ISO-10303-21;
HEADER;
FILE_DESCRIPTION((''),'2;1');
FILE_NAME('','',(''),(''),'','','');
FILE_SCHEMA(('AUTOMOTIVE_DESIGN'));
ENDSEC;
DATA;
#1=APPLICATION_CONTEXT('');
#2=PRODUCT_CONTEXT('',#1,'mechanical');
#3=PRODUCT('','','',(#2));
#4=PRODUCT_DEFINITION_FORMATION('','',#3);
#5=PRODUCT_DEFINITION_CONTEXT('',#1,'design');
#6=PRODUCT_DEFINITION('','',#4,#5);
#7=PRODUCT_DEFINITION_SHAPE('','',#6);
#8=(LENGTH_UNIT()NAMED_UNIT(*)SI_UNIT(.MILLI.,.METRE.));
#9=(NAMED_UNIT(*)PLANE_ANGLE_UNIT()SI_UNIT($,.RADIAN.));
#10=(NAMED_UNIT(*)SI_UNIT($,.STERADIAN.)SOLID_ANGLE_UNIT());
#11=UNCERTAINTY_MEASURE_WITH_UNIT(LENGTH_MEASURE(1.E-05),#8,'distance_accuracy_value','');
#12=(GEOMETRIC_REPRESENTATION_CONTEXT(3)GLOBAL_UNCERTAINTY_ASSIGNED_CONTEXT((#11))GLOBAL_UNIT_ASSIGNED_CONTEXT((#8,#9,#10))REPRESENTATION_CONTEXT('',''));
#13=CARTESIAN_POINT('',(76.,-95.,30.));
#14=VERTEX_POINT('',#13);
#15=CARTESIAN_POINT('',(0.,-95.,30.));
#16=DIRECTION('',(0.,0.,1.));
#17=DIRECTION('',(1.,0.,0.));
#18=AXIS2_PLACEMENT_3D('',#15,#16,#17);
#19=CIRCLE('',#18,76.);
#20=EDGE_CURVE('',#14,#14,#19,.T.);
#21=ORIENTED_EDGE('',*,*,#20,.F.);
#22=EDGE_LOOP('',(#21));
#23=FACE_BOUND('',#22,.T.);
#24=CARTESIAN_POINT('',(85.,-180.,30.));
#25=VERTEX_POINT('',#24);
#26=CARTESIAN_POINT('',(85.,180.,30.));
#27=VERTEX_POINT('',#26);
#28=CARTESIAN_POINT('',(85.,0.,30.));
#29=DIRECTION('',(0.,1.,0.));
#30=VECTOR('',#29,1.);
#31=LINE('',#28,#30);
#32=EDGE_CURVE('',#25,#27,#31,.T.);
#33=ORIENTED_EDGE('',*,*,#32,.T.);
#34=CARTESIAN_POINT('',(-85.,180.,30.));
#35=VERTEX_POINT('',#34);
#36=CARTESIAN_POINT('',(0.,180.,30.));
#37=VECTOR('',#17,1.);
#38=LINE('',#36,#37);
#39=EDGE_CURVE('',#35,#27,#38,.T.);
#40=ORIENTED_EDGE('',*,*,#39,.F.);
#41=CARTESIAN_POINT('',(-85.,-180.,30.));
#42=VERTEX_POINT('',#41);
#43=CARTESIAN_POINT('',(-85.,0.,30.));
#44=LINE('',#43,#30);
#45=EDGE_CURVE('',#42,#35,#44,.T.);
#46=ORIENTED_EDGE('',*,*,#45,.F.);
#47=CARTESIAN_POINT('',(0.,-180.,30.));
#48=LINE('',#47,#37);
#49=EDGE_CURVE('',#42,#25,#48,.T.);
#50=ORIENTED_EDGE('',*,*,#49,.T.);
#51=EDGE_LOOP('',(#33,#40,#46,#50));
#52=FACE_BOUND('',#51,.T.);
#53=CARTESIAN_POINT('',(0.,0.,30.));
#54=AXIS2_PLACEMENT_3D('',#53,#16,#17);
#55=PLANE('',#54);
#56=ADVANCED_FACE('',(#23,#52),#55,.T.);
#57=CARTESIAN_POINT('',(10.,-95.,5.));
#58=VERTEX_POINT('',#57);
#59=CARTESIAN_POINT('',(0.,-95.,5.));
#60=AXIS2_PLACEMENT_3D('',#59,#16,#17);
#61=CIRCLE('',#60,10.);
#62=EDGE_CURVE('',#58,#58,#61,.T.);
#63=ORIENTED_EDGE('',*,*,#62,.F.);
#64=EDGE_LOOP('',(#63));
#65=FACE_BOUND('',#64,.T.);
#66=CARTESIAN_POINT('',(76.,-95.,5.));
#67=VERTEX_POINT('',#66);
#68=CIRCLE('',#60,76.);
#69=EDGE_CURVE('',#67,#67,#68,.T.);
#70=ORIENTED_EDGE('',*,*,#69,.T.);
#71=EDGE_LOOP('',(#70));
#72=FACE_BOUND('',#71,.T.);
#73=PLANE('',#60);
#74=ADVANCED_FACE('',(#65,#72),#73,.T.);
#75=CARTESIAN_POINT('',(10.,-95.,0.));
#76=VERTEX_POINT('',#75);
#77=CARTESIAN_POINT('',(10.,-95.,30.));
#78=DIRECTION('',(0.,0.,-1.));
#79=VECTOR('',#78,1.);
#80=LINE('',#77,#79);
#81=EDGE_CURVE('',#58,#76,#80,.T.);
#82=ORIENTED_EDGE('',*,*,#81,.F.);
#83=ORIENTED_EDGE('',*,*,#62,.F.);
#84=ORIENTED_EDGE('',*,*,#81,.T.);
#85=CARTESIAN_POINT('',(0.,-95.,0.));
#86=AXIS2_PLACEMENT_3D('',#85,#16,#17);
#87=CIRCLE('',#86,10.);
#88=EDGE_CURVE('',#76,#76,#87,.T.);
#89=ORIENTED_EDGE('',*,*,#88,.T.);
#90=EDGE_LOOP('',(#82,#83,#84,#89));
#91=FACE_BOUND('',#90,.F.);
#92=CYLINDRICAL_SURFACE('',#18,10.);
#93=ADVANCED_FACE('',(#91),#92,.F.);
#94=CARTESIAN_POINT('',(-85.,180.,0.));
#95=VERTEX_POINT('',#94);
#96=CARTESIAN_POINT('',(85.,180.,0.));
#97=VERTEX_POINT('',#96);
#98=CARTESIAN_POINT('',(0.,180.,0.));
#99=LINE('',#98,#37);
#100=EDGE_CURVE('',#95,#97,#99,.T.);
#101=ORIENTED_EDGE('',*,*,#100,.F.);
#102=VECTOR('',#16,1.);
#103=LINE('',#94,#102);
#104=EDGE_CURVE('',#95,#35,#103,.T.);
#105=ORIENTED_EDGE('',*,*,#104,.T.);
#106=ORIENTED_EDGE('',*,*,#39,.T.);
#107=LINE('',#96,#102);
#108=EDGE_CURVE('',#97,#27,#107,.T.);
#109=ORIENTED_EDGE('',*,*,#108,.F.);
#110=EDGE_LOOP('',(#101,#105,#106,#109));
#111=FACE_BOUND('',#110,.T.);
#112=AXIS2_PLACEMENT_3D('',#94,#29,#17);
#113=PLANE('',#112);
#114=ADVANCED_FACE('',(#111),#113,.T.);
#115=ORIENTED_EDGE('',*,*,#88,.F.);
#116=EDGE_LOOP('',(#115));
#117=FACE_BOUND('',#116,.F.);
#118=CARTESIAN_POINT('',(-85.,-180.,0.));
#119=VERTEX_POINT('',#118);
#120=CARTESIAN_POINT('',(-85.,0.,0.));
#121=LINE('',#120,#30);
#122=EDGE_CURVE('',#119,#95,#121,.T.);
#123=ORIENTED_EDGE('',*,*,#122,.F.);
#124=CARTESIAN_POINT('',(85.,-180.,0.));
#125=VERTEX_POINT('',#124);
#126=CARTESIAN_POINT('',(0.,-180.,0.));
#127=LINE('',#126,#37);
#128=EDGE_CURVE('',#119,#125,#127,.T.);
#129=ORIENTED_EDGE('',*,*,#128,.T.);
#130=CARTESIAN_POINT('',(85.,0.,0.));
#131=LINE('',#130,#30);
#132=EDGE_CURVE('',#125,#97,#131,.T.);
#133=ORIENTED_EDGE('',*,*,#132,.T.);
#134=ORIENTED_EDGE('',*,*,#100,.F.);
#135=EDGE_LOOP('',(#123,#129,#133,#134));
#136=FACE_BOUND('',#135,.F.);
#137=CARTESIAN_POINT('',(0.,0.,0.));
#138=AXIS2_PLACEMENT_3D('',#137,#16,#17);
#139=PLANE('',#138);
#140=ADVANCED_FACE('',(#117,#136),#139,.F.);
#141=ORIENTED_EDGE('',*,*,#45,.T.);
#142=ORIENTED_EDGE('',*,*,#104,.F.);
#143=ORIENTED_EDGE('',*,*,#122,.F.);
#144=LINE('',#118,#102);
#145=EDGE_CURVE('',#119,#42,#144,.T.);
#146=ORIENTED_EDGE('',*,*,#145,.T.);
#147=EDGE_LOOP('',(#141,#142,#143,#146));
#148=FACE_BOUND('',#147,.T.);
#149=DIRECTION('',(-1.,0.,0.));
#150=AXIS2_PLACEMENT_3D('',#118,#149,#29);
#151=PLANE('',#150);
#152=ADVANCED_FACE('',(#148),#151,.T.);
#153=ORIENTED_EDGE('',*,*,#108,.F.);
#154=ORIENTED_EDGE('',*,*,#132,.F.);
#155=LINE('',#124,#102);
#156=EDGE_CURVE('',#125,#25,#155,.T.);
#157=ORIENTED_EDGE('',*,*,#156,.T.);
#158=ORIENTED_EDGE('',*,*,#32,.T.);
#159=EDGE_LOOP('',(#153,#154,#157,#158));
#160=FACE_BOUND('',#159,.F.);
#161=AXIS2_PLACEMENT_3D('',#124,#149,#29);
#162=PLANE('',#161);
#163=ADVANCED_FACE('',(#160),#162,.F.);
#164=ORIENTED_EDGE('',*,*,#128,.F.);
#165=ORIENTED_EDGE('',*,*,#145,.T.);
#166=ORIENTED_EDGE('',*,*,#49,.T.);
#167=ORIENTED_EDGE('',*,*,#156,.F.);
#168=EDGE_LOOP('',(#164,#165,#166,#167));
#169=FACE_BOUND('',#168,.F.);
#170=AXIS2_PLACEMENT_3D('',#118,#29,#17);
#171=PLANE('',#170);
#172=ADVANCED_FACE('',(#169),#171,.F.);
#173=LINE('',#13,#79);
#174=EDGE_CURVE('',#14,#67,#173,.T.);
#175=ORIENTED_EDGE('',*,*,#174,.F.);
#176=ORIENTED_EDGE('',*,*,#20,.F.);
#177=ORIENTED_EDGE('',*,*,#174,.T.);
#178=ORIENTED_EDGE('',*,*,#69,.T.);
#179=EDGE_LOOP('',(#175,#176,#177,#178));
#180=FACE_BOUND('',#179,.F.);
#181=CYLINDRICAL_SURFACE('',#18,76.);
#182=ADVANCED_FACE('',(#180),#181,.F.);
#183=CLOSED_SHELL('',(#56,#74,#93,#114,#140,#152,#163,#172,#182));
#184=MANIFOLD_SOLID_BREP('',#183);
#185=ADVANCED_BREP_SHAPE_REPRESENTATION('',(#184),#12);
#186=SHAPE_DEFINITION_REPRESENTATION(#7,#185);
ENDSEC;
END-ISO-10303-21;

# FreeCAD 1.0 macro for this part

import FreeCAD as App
import Part
import Sketcher
from FreeCAD import Vector
Q = App.Units.Quantity

doc = App.newDocument("Part")
params = doc.addObject("Spreadsheet::Sheet", "Params")
for row, (alias, value) in enumerate([
    ("sketch1_width", "170 mm"),
    ("sketch1_height", "360 mm"),
    ("pad1_length", "30 mm"),
    ("sketch2_diameter", "20 mm"),
    ("sketch3_diameter", "152 mm"),
    ("sketch3_diameter2", "20 mm"),
    ("pocket2_length", "25 mm"),
], start=1):
    params.set(f"A{row}", alias)
    params.set(f"B{row}", "=" + value)
    params.setAlias(f"B{row}", alias)

body = doc.addObject("PartDesign::Body", "Body")

sketch1 = body.newObject("Sketcher::SketchObject", "Sketch")
sketch1.AttachmentSupport = (doc.getObject("XY_Plane"), [""])
sketch1.MapMode = "FlatFace"
sketch1.addGeometry(Part.LineSegment(Vector(-85, 180, 0), Vector(-85, -180, 0)), False)
sketch1.addGeometry(Part.LineSegment(Vector(-85, -180, 0), Vector(85, -180, 0)), False)
sketch1.addGeometry(Part.LineSegment(Vector(85, -180, 0), Vector(85, 180, 0)), False)
sketch1.addGeometry(Part.LineSegment(Vector(85, 180, 0), Vector(-85, 180, 0)), False)
sketch1.addConstraint(Sketcher.Constraint("Coincident", 0, 2, 1, 1))
sketch1.addConstraint(Sketcher.Constraint("Coincident", 1, 2, 2, 1))
sketch1.addConstraint(Sketcher.Constraint("Coincident", 2, 2, 3, 1))
sketch1.addConstraint(Sketcher.Constraint("Coincident", 3, 2, 0, 1))
sketch1.addConstraint(Sketcher.Constraint("Vertical", 0))
sketch1.addConstraint(Sketcher.Constraint("Horizontal", 1))
sketch1.addConstraint(Sketcher.Constraint("Vertical", 2))
sketch1.addConstraint(Sketcher.Constraint("Horizontal", 3))
sketch1.addConstraint(Sketcher.Constraint("Symmetric", 0, 2, 2, 2, -1, 1))
sketch1.addConstraint(Sketcher.Constraint("DistanceX", 1, 1, 1, 2, Q("170 mm")))
sketch1.addConstraint(Sketcher.Constraint("DistanceY", 0, 2, 0, 1, Q("360 mm")))
sketch1.setExpression("Constraints[9]", "Params.sketch1_width")
sketch1.setExpression("Constraints[10]", "Params.sketch1_height")
pad1 = body.newObject("PartDesign::Pad", "Pad")
pad1.Profile = sketch1
pad1.setExpression("Length", "Params.pad1_length")

sketch2 = body.newObject("Sketcher::SketchObject", "Sketch001")
sketch2.AttachmentSupport = (doc.getObject("XY_Plane"), [""])
sketch2.MapMode = "FlatFace"
sketch2.AttachmentOffset = App.Placement(Vector(0, 0, 30), App.Rotation())
sketch2.addGeometry(Part.Circle(Vector(0, -95, 0), Vector(0, 0, 1), 10), False)
sketch2.addConstraint(Sketcher.Constraint("PointOnObject", 0, 3, -2))
sketch2.addConstraint(Sketcher.Constraint("Diameter", 0, Q("20 mm")))
sketch2.addConstraint(Sketcher.Constraint("DistanceY", 0, 3, -1, 1, Q("95 mm")))
sketch2.setExpression("Constraints[1]", "Params.sketch2_diameter")
pocket1 = body.newObject("PartDesign::Pocket", "Pocket")
pocket1.Profile = sketch2
pocket1.Type = "ThroughAll"

sketch3 = body.newObject("Sketcher::SketchObject", "Sketch002")
sketch3.AttachmentSupport = (doc.getObject("XY_Plane"), [""])
sketch3.MapMode = "FlatFace"
sketch3.AttachmentOffset = App.Placement(Vector(0, 0, 30), App.Rotation())
sketch3.addGeometry(Part.Circle(Vector(0, -95, 0), Vector(0, 0, 1), 76), False)
sketch3.addGeometry(Part.Circle(Vector(0, -95, 0), Vector(0, 0, 1), 10), False)
sketch3.addConstraint(Sketcher.Constraint("Coincident", 1, 3, 0, 3))
sketch3.addConstraint(Sketcher.Constraint("PointOnObject", 0, 3, -2))
sketch3.addConstraint(Sketcher.Constraint("Diameter", 0, Q("152 mm")))
sketch3.addConstraint(Sketcher.Constraint("Diameter", 1, Q("20 mm")))
sketch3.addConstraint(Sketcher.Constraint("DistanceY", 0, 3, -1, 1, Q("95 mm")))
sketch3.setExpression("Constraints[2]", "Params.sketch3_diameter")
sketch3.setExpression("Constraints[3]", "Params.sketch3_diameter2")
pocket2 = body.newObject("PartDesign::Pocket", "Pocket001")
pocket2.Profile = sketch3
pocket2.setExpression("Length", "Params.pocket2_length")

doc.recompute()
